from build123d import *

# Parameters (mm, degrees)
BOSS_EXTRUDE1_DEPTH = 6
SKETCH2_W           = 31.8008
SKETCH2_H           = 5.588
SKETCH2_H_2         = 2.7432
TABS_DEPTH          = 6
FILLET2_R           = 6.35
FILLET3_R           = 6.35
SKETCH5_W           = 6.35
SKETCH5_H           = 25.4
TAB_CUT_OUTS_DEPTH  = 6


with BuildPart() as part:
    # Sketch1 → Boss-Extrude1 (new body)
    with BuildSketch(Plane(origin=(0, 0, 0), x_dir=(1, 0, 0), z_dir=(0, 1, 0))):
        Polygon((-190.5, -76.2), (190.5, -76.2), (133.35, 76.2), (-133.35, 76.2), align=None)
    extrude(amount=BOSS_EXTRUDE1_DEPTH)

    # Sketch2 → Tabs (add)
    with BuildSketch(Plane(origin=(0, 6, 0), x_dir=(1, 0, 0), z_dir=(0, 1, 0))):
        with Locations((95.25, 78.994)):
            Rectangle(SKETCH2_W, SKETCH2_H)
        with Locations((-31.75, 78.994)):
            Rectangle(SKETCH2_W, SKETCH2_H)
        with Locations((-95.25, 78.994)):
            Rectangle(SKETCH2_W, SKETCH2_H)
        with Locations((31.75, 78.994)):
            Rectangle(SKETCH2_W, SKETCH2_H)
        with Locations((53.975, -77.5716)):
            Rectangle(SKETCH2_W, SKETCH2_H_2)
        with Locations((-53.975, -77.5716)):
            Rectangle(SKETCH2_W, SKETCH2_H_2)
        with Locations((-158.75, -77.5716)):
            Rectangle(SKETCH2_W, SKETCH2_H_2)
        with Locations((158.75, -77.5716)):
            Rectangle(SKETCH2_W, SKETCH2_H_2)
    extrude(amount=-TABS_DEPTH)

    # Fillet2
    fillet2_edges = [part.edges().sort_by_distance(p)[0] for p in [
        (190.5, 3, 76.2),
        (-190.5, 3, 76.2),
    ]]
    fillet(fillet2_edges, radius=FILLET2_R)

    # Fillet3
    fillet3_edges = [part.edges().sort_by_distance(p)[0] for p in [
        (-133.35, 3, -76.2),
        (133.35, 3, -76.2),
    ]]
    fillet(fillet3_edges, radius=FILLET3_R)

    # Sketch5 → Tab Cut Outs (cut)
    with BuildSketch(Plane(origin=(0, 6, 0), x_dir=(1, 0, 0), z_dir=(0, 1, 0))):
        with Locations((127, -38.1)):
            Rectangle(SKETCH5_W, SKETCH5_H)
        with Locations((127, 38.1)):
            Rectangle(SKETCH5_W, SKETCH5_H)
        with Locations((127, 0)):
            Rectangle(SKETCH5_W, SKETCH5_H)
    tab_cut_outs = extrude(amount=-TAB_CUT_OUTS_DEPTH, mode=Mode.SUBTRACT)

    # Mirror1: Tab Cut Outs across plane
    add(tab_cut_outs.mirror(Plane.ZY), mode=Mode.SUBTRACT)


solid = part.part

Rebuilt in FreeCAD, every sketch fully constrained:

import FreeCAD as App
import Part
import Sketcher

V = App.Vector
Q = App.Units.Quantity


def edges_at(feature, points):
    """Names of the edges that pass closest to the given points."""
    edges = feature.Shape.Edges
    near = lambda p: min(range(len(edges)), key=lambda i: edges[i].distToShape(Part.Vertex(*p))[0])
    return sorted({f"Edge{near(p) + 1}" for p in points})

doc = App.newDocument("Part")
params = doc.addObject("Spreadsheet::Sheet", "Params")
for row, (alias, value) in enumerate([
    ("sketch1_width", "15 in"),
    ("sketch1_width2", "10.5 in"),
    ("pad1_length", "6 mm"),
    ("sketch2_height", "0.22 in"),
    ("sketch2_width", "1.252 in"),
    ("sketch2_height2", "0.108 in"),
    ("pad2_length", "6 mm"),
    ("fillet_radius", "0.25 in"),
    ("fillet2_radius", "0.25 in"),
    ("sketch3_height", "1 in"),
    ("sketch3_width", "0.25 in"),
    ("pocket1_length", "6 mm"),
], start=1):
    params.set(f"A{row}", alias)
    params.set(f"B{row}", "=" + value)
    params.setAlias(f"B{row}", alias)

body = doc.addObject("PartDesign::Body", "Body")

# Sketch on XZ plane
sketch1 = body.newObject("Sketcher::SketchObject", "Sketch")
sketch1.AttachmentSupport = (doc.getObject("XZ_Plane"), [""])
sketch1.MapMode = "FlatFace"
sketch1.addGeometry(Part.LineSegment(V(-190, 76, 0), V(190, 76, 0)), False)
sketch1.addGeometry(Part.LineSegment(V(190, 76, 0), V(133, -76, 0)), False)
sketch1.addGeometry(Part.LineSegment(V(133, -76, 0), V(-133, -76, 0)), False)
sketch1.addGeometry(Part.LineSegment(V(-133, -76, 0), V(-190, 76, 0)), False)
sketch1.addConstraint(Sketcher.Constraint("Coincident", 0, 2, 1, 1))
sketch1.addConstraint(Sketcher.Constraint("Coincident", 1, 2, 2, 1))
sketch1.addConstraint(Sketcher.Constraint("Coincident", 2, 2, 3, 1))
sketch1.addConstraint(Sketcher.Constraint("Coincident", 3, 2, 0, 1))
sketch1.addConstraint(Sketcher.Constraint("Horizontal", 0))
sketch1.addConstraint(Sketcher.Constraint("Horizontal", 2))
sketch1.addConstraint(Sketcher.Constraint("Equal", 1, 3))
sketch1.addConstraint(Sketcher.Constraint("DistanceX", 0, 1, 0, 2, Q("15 in")))
sketch1.addConstraint(Sketcher.Constraint("DistanceX", 2, 2, 2, 1, Q("10.5 in")))
sketch1.addConstraint(Sketcher.Constraint("DistanceY", -1, 1, 0, 2, Q("3 in")))
sketch1.addConstraint(Sketcher.Constraint("DistanceY", 1, 2, -1, 1, Q("3 in")))
sketch1.addConstraint(Sketcher.Constraint("DistanceX", -1, 1, 0, 2, Q("7.5 in")))
sketch1.setExpression("Constraints[7]", "Params.sketch1_width")
sketch1.setExpression("Constraints[8]", "Params.sketch1_width2")
pad1 = body.newObject("PartDesign::Pad", "Pad")
pad1.Profile = sketch1
pad1.setExpression("Length", "Params.pad1_length")
pad1.Reversed = True

# Sketch on XZ plane
sketch2 = body.newObject("Sketcher::SketchObject", "Sketch001")
sketch2.AttachmentSupport = (doc.getObject("XZ_Plane"), [""])
sketch2.MapMode = "FlatFace"
sketch2.AttachmentOffset = App.Placement(V(0, 0, -6), App.Rotation())
sketch2.addGeometry(Part.LineSegment(V(79.3, -81.8, 0), V(79.3, -76.2, 0)), False)
sketch2.addGeometry(Part.LineSegment(V(79.3, -76.2, 0), V(111.2, -76.2, 0)), False)
sketch2.addGeometry(Part.LineSegment(V(111.2, -76.2, 0), V(111.2, -81.8, 0)), False)
sketch2.addGeometry(Part.LineSegment(V(111.2, -81.8, 0), V(79.3, -81.8, 0)), False)
sketch2.addGeometry(Part.LineSegment(V(-47.7, -81.8, 0), V(-47.7, -76.2, 0)), False)
sketch2.addGeometry(Part.LineSegment(V(-47.7, -76.2, 0), V(-15.8, -76.2, 0)), False)
sketch2.addGeometry(Part.LineSegment(V(-15.8, -76.2, 0), V(-15.8, -81.8, 0)), False)
sketch2.addGeometry(Part.LineSegment(V(-15.8, -81.8, 0), V(-47.7, -81.8, 0)), False)
sketch2.addGeometry(Part.LineSegment(V(-111.2, -81.8, 0), V(-111.2, -76.2, 0)), False)
sketch2.addGeometry(Part.LineSegment(V(-111.2, -76.2, 0), V(-79.3, -76.2, 0)), False)
sketch2.addGeometry(Part.LineSegment(V(-79.3, -76.2, 0), V(-79.3, -81.8, 0)), False)
sketch2.addGeometry(Part.LineSegment(V(-79.3, -81.8, 0), V(-111.2, -81.8, 0)), False)
sketch2.addGeometry(Part.LineSegment(V(15.8, -81.8, 0), V(15.8, -76.2, 0)), False)
sketch2.addGeometry(Part.LineSegment(V(15.8, -76.2, 0), V(47.7, -76.2, 0)), False)
sketch2.addGeometry(Part.LineSegment(V(47.7, -76.2, 0), V(47.7, -81.8, 0)), False)
sketch2.addGeometry(Part.LineSegment(V(47.7, -81.8, 0), V(15.8, -81.8, 0)), False)
sketch2.addGeometry(Part.LineSegment(V(38.1, 76.2, 0), V(38.1, 78.9, 0)), False)
sketch2.addGeometry(Part.LineSegment(V(38.1, 78.9, 0), V(69.9, 78.9, 0)), False)
sketch2.addGeometry(Part.LineSegment(V(69.9, 78.9, 0), V(69.9, 76.2, 0)), False)
sketch2.addGeometry(Part.LineSegment(V(69.9, 76.2, 0), V(38.1, 76.2, 0)), False)
sketch2.addGeometry(Part.LineSegment(V(-69.9, 76.2, 0), V(-69.9, 78.9, 0)), False)
sketch2.addGeometry(Part.LineSegment(V(-69.9, 78.9, 0), V(-38.1, 78.9, 0)), False)
sketch2.addGeometry(Part.LineSegment(V(-38.1, 78.9, 0), V(-38.1, 76.2, 0)), False)
sketch2.addGeometry(Part.LineSegment(V(-38.1, 76.2, 0), V(-69.9, 76.2, 0)), False)
sketch2.addGeometry(Part.LineSegment(V(-174.7, 76.2, 0), V(-174.7, 78.9, 0)), False)
sketch2.addGeometry(Part.LineSegment(V(-174.7, 78.9, 0), V(-142.8, 78.9, 0)), False)
sketch2.addGeometry(Part.LineSegment(V(-142.8, 78.9, 0), V(-142.8, 76.2, 0)), False)
sketch2.addGeometry(Part.LineSegment(V(-142.8, 76.2, 0), V(-174.7, 76.2, 0)), False)
sketch2.addGeometry(Part.LineSegment(V(142.8, 76.2, 0), V(142.8, 78.9, 0)), False)
sketch2.addGeometry(Part.LineSegment(V(142.8, 78.9, 0), V(174.7, 78.9, 0)), False)
sketch2.addGeometry(Part.LineSegment(V(174.7, 78.9, 0), V(174.7, 76.2, 0)), False)
sketch2.addGeometry(Part.LineSegment(V(174.7, 76.2, 0), V(142.8, 76.2, 0)), False)
sketch2.addConstraint(Sketcher.Constraint("Coincident", 0, 2, 1, 1))
sketch2.addConstraint(Sketcher.Constraint("Coincident", 1, 2, 2, 1))
sketch2.addConstraint(Sketcher.Constraint("Coincident", 2, 2, 3, 1))
sketch2.addConstraint(Sketcher.Constraint("Coincident", 3, 2, 0, 1))
sketch2.addConstraint(Sketcher.Constraint("Coincident", 4, 2, 5, 1))
sketch2.addConstraint(Sketcher.Constraint("Coincident", 5, 2, 6, 1))
sketch2.addConstraint(Sketcher.Constraint("Coincident", 6, 2, 7, 1))
sketch2.addConstraint(Sketcher.Constraint("Coincident", 7, 2, 4, 1))
sketch2.addConstraint(Sketcher.Constraint("Coincident", 8, 2, 9, 1))
sketch2.addConstraint(Sketcher.Constraint("Coincident", 9, 2, 10, 1))
sketch2.addConstraint(Sketcher.Constraint("Coincident", 10, 2, 11, 1))
sketch2.addConstraint(Sketcher.Constraint("Coincident", 11, 2, 8, 1))
sketch2.addConstraint(Sketcher.Constraint("Coincident", 12, 2, 13, 1))
sketch2.addConstraint(Sketcher.Constraint("Coincident", 13, 2, 14, 1))
sketch2.addConstraint(Sketcher.Constraint("Coincident", 14, 2, 15, 1))
sketch2.addConstraint(Sketcher.Constraint("Coincident", 15, 2, 12, 1))
sketch2.addConstraint(Sketcher.Constraint("Coincident", 16, 2, 17, 1))
sketch2.addConstraint(Sketcher.Constraint("Coincident", 17, 2, 18, 1))
sketch2.addConstraint(Sketcher.Constraint("Coincident", 18, 2, 19, 1))
sketch2.addConstraint(Sketcher.Constraint("Coincident", 19, 2, 16, 1))
sketch2.addConstraint(Sketcher.Constraint("Coincident", 20, 2, 21, 1))
sketch2.addConstraint(Sketcher.Constraint("Coincident", 21, 2, 22, 1))
sketch2.addConstraint(Sketcher.Constraint("Coincident", 22, 2, 23, 1))
sketch2.addConstraint(Sketcher.Constraint("Coincident", 23, 2, 20, 1))
sketch2.addConstraint(Sketcher.Constraint("Coincident", 24, 2, 25, 1))
sketch2.addConstraint(Sketcher.Constraint("Coincident", 25, 2, 26, 1))
sketch2.addConstraint(Sketcher.Constraint("Coincident", 26, 2, 27, 1))
sketch2.addConstraint(Sketcher.Constraint("Coincident", 27, 2, 24, 1))
sketch2.addConstraint(Sketcher.Constraint("Coincident", 28, 2, 29, 1))
sketch2.addConstraint(Sketcher.Constraint("Coincident", 29, 2, 30, 1))
sketch2.addConstraint(Sketcher.Constraint("Coincident", 30, 2, 31, 1))
sketch2.addConstraint(Sketcher.Constraint("Coincident", 31, 2, 28, 1))
sketch2.addConstraint(Sketcher.Constraint("Vertical", 0))
sketch2.addConstraint(Sketcher.Constraint("Horizontal", 1))
sketch2.addConstraint(Sketcher.Constraint("Vertical", 2))
sketch2.addConstraint(Sketcher.Constraint("Horizontal", 3))
sketch2.addConstraint(Sketcher.Constraint("Vertical", 4))
sketch2.addConstraint(Sketcher.Constraint("Horizontal", 5))
sketch2.addConstraint(Sketcher.Constraint("Vertical", 6))
sketch2.addConstraint(Sketcher.Constraint("Horizontal", 7))
sketch2.addConstraint(Sketcher.Constraint("Vertical", 8))
sketch2.addConstraint(Sketcher.Constraint("Horizontal", 9))
sketch2.addConstraint(Sketcher.Constraint("Vertical", 10))
sketch2.addConstraint(Sketcher.Constraint("Horizontal", 11))
sketch2.addConstraint(Sketcher.Constraint("Vertical", 12))
sketch2.addConstraint(Sketcher.Constraint("Horizontal", 13))
sketch2.addConstraint(Sketcher.Constraint("Vertical", 14))
sketch2.addConstraint(Sketcher.Constraint("Horizontal", 15))
sketch2.addConstraint(Sketcher.Constraint("Vertical", 16))
sketch2.addConstraint(Sketcher.Constraint("Horizontal", 17))
sketch2.addConstraint(Sketcher.Constraint("Vertical", 18))
sketch2.addConstraint(Sketcher.Constraint("Horizontal", 19))
sketch2.addConstraint(Sketcher.Constraint("Vertical", 20))
sketch2.addConstraint(Sketcher.Constraint("Horizontal", 21))
sketch2.addConstraint(Sketcher.Constraint("Vertical", 22))
sketch2.addConstraint(Sketcher.Constraint("Horizontal", 23))
sketch2.addConstraint(Sketcher.Constraint("Vertical", 24))
sketch2.addConstraint(Sketcher.Constraint("Horizontal", 25))
sketch2.addConstraint(Sketcher.Constraint("Vertical", 26))
sketch2.addConstraint(Sketcher.Constraint("Horizontal", 27))
sketch2.addConstraint(Sketcher.Constraint("Vertical", 28))
sketch2.addConstraint(Sketcher.Constraint("Horizontal", 29))
sketch2.addConstraint(Sketcher.Constraint("Vertical", 30))
sketch2.addConstraint(Sketcher.Constraint("Horizontal", 31))
sketch2.addConstraint(Sketcher.Constraint("Symmetric", 1, 2, 8, 2, -2))
sketch2.addConstraint(Sketcher.Constraint("Symmetric", 3, 2, 10, 2, -2))
sketch2.addConstraint(Sketcher.Constraint("Symmetric", 5, 2, 12, 2, -2))
sketch2.addConstraint(Sketcher.Constraint("Symmetric", 7, 2, 14, 2, -2))
sketch2.addConstraint(Sketcher.Constraint("Symmetric", 17, 2, 20, 2, -2))
sketch2.addConstraint(Sketcher.Constraint("Symmetric", 19, 2, 22, 2, -2))
sketch2.addConstraint(Sketcher.Constraint("Symmetric", 25, 2, 28, 2, -2))
sketch2.addConstraint(Sketcher.Constraint("Symmetric", 27, 2, 30, 2, -2))
sketch2.addConstraint(Sketcher.Constraint("Horizontal", 1, 2, 4, 2))
sketch2.addConstraint(Sketcher.Constraint("Horizontal", 3, 2, 6, 2))
sketch2.addConstraint(Sketcher.Constraint("Horizontal", 21, 2, 24, 2))
sketch2.addConstraint(Sketcher.Constraint("Horizontal", 23, 2, 26, 2))
sketch2.addConstraint(Sketcher.Constraint("Equal", 3, 5))
sketch2.addConstraint(Sketcher.Constraint("Equal", 15, 17))
sketch2.addConstraint(Sketcher.Constraint("Equal", 23, 25))
sketch2.addConstraint(Sketcher.Constraint("DistanceY", 0, 2, -1, 1, Q("3 in")))
sketch2.addConstraint(Sketcher.Constraint("DistanceY", -1, 1, 18, 2, Q("3 in")))
sketch2.addConstraint(Sketcher.Constraint("DistanceX", 4, 2, 0, 2, Q("5 in")))
sketch2.addConstraint(Sketcher.Constraint("DistanceY", 0, 1, 0, 2, Q("0.22 in")))
sketch2.addConstraint(Sketcher.Constraint("DistanceX", 8, 2, 4, 2, Q("2.5 in")))
sketch2.addConstraint(Sketcher.Constraint("DistanceX", 24, 2, 8, 2, Q("2.5 in")))
sketch2.addConstraint(Sketcher.Constraint("DistanceX", 1, 1, 1, 2, Q("1.252 in")))
sketch2.addConstraint(Sketcher.Constraint("DistanceY", 16, 1, 16, 2, Q("0.108 in")))
sketch2.addConstraint(Sketcher.Constraint("DistanceX", 20, 2, 16, 2, Q("4.25 in")))
sketch2.setExpression("Constraints[82]", "Params.sketch2_height")
sketch2.setExpression("Constraints[85]", "Params.sketch2_width")
sketch2.setExpression("Constraints[86]", "Params.sketch2_height2")
pad2 = body.newObject("PartDesign::Pad", "Pad001")
pad2.Profile = sketch2
pad2.setExpression("Length", "Params.pad2_length")
doc.recompute()

fillet = body.newObject("PartDesign::Fillet", "Fillet")
fillet.Base = (pad2, edges_at(pad2, [(190.5, 3, 76.2), (-190.5, 3, 76.2)]))
fillet.setExpression("Radius", "Params.fillet_radius")
doc.recompute()

fillet2 = body.newObject("PartDesign::Fillet", "Fillet001")
fillet2.Base = (fillet, edges_at(fillet, [(-133.35, 3, -76.2), (133.35, 3, -76.2)]))
fillet2.setExpression("Radius", "Params.fillet2_radius")

# Sketch on XZ plane
sketch3 = body.newObject("Sketcher::SketchObject", "Sketch002")
sketch3.AttachmentSupport = (doc.getObject("XZ_Plane"), [""])
sketch3.MapMode = "FlatFace"
sketch3.AttachmentOffset = App.Placement(V(0, 0, -6), App.Rotation())
sketch3.addGeometry(Part.LineSegment(V(124, 25, 0), V(124, 51, 0)), False)
sketch3.addGeometry(Part.LineSegment(V(124, 51, 0), V(130, 51, 0)), False)
sketch3.addGeometry(Part.LineSegment(V(130, 51, 0), V(130, 25, 0)), False)
sketch3.addGeometry(Part.LineSegment(V(130, 25, 0), V(124, 25, 0)), False)
sketch3.addGeometry(Part.LineSegment(V(124, -51, 0), V(124, -25, 0)), False)
sketch3.addGeometry(Part.LineSegment(V(124, -25, 0), V(130, -25, 0)), False)
sketch3.addGeometry(Part.LineSegment(V(130, -25, 0), V(130, -51, 0)), False)
sketch3.addGeometry(Part.LineSegment(V(130, -51, 0), V(124, -51, 0)), False)
sketch3.addGeometry(Part.LineSegment(V(124, -13, 0), V(124, 13, 0)), False)
sketch3.addGeometry(Part.LineSegment(V(124, 13, 0), V(130, 13, 0)), False)
sketch3.addGeometry(Part.LineSegment(V(130, 13, 0), V(130, -13, 0)), False)
sketch3.addGeometry(Part.LineSegment(V(130, -13, 0), V(124, -13, 0)), False)
sketch3.addConstraint(Sketcher.Constraint("Coincident", 0, 2, 1, 1))
sketch3.addConstraint(Sketcher.Constraint("Coincident", 1, 2, 2, 1))
sketch3.addConstraint(Sketcher.Constraint("Coincident", 2, 2, 3, 1))
sketch3.addConstraint(Sketcher.Constraint("Coincident", 3, 2, 0, 1))
sketch3.addConstraint(Sketcher.Constraint("Coincident", 4, 2, 5, 1))
sketch3.addConstraint(Sketcher.Constraint("Coincident", 5, 2, 6, 1))
sketch3.addConstraint(Sketcher.Constraint("Coincident", 6, 2, 7, 1))
sketch3.addConstraint(Sketcher.Constraint("Coincident", 7, 2, 4, 1))
sketch3.addConstraint(Sketcher.Constraint("Coincident", 8, 2, 9, 1))
sketch3.addConstraint(Sketcher.Constraint("Coincident", 9, 2, 10, 1))
sketch3.addConstraint(Sketcher.Constraint("Coincident", 10, 2, 11, 1))
sketch3.addConstraint(Sketcher.Constraint("Coincident", 11, 2, 8, 1))
sketch3.addConstraint(Sketcher.Constraint("Vertical", 0))
sketch3.addConstraint(Sketcher.Constraint("Horizontal", 1))
sketch3.addConstraint(Sketcher.Constraint("Vertical", 2))
sketch3.addConstraint(Sketcher.Constraint("Horizontal", 3))
sketch3.addConstraint(Sketcher.Constraint("Vertical", 4))
sketch3.addConstraint(Sketcher.Constraint("Horizontal", 5))
sketch3.addConstraint(Sketcher.Constraint("Vertical", 6))
sketch3.addConstraint(Sketcher.Constraint("Horizontal", 7))
sketch3.addConstraint(Sketcher.Constraint("Vertical", 8))
sketch3.addConstraint(Sketcher.Constraint("Horizontal", 9))
sketch3.addConstraint(Sketcher.Constraint("Vertical", 10))
sketch3.addConstraint(Sketcher.Constraint("Horizontal", 11))
sketch3.addConstraint(Sketcher.Constraint("Symmetric", 3, 2, 4, 2, -1))
sketch3.addConstraint(Sketcher.Constraint("Symmetric", 1, 2, 6, 2, -1))
sketch3.addConstraint(Sketcher.Constraint("Vertical", 7, 2, 8, 2))
sketch3.addConstraint(Sketcher.Constraint("Vertical", 6, 2, 9, 2))
sketch3.addConstraint(Sketcher.Constraint("Equal", 6, 8))
sketch3.addConstraint(Sketcher.Constraint("DistanceY", 0, 1, 0, 2, Q("1 in")))
sketch3.addConstraint(Sketcher.Constraint("DistanceY", -1, 1, 0, 2, Q("2 in")))
sketch3.addConstraint(Sketcher.Constraint("DistanceX", 1, 1, 1, 2, Q("0.25 in")))
sketch3.addConstraint(Sketcher.Constraint("DistanceY", -1, 1, 8, 2, Q("0.5 in")))
sketch3.addConstraint(Sketcher.Constraint("DistanceX", -1, 1, 0, 2, Q("4.875 in")))
sketch3.setExpression("Constraints[29]", "Params.sketch3_height")
sketch3.setExpression("Constraints[31]", "Params.sketch3_width")
pocket1 = body.newObject("PartDesign::Pocket", "Pocket")
pocket1.Profile = sketch3
pocket1.setExpression("Length", "Params.pocket1_length")
pocket1.Reversed = True
doc.recompute()

mirrored = body.newObject("PartDesign::Mirrored", "Mirrored")
mirrored.Originals = [pocket1]
mirrored.MirrorPlane = (doc.getObject("YZ_Plane"), [""])
body.Tip = mirrored

doc.recompute()
